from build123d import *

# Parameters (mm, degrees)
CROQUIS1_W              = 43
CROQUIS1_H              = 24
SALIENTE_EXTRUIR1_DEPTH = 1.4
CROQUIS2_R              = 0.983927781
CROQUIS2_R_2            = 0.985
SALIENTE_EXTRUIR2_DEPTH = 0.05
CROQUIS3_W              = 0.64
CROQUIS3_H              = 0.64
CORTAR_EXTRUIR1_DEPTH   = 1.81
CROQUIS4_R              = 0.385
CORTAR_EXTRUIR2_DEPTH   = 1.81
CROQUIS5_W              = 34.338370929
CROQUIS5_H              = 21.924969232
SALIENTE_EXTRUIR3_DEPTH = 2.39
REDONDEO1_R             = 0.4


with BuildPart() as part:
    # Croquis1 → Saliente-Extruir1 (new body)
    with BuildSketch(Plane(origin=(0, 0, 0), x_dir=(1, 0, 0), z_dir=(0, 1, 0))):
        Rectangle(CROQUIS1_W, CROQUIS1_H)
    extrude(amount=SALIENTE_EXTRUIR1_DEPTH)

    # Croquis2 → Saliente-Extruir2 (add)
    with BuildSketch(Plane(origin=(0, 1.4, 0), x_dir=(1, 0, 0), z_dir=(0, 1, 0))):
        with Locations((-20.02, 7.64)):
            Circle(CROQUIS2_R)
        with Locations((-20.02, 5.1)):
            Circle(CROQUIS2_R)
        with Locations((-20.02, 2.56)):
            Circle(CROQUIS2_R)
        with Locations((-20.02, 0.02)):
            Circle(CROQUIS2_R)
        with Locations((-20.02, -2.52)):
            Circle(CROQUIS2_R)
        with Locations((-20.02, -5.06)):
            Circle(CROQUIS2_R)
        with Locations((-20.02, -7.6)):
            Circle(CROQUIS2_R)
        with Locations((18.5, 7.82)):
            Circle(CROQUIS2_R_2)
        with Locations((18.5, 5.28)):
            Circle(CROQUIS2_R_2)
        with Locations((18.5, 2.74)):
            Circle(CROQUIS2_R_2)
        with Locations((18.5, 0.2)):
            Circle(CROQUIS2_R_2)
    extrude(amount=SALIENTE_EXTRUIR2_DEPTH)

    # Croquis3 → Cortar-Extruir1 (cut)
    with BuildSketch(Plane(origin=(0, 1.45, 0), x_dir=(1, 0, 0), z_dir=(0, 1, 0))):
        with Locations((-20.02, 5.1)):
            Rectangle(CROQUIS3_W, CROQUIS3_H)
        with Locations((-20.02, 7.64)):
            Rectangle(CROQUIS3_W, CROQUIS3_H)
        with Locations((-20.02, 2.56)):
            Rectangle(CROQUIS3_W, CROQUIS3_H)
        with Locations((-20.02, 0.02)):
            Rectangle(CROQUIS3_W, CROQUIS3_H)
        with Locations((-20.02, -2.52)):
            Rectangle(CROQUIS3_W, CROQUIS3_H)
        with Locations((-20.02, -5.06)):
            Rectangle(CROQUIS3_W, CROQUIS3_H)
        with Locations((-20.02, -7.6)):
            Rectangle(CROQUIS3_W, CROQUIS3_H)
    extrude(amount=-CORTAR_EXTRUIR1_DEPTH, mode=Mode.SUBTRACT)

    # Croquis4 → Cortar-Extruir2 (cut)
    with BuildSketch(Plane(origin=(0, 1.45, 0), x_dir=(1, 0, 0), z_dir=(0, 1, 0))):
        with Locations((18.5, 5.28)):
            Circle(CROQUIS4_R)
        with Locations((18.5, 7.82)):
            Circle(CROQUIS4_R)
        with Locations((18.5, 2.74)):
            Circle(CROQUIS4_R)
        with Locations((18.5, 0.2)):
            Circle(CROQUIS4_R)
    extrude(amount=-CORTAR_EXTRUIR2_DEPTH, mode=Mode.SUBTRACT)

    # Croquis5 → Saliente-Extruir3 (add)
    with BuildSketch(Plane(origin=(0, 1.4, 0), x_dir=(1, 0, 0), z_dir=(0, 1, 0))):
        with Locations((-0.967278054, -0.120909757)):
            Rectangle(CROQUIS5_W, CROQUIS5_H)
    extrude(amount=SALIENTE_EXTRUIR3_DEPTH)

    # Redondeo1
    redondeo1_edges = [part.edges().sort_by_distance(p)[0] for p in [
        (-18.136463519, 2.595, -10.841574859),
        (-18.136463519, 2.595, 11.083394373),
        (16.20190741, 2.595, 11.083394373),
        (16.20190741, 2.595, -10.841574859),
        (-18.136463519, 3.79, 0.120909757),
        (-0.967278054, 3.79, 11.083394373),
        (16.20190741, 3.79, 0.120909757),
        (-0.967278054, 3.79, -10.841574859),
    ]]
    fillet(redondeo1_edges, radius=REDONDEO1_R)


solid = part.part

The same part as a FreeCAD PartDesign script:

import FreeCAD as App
import Part
import Sketcher
Q = App.Units.Quantity


def edges_at(feature, points):
    """Names of the edges that pass closest to the given points."""
    edges = feature.Shape.Edges
    near = lambda p: min(range(len(edges)), key=lambda i: edges[i].distToShape(Part.Vertex(*p))[0])
    return sorted({f"Edge{near(p) + 1}" for p in points})


def add_polygon(sketch, points):
    """Adds a closed chain of lines whose ends are joined by coincident constraints."""
    first, n = sketch.GeometryCount, len(points)
    for a, b in zip(points, points[1:] + points[:1]):
        sketch.addGeometry(Part.LineSegment(App.Vector(*a, 0), App.Vector(*b, 0)), False)
    for i in range(n):
        sketch.addConstraint(Sketcher.Constraint("Coincident", first + i, 2, first + (i + 1) % n, 1))

doc = App.newDocument("Part")
body = doc.addObject("PartDesign::Body", "Body")

# Sketch on XZ plane
sketch1 = body.newObject("Sketcher::SketchObject", "Sketch")
sketch1.AttachmentSupport = (doc.getObject("XZ_Plane"), [""])
sketch1.MapMode = "FlatFace"
add_polygon(sketch1, [(-21.5, -12), (-21.5, 12), (21.5, 12), (21.5, -12)])  # lines 0-3
sketch1.addConstraint([
    Sketcher.Constraint("Vertical", 0),
    Sketcher.Constraint("Horizontal", 1),
    Sketcher.Constraint("Vertical", 2),
    Sketcher.Constraint("Horizontal", 3),
    Sketcher.Constraint("Symmetric", 0, 2, 2, 2, -1, 1),
    Sketcher.Constraint("DistanceX", 1, 1, 1, 2, Q("43 mm")),
    Sketcher.Constraint("DistanceY", 0, 1, 0, 2, Q("24 mm")),
])
pad1 = body.newObject("PartDesign::Pad", "Pad")
pad1.Profile = sketch1
pad1.Length = 1.4
pad1.Reversed = True

# Sketch on XZ plane
sketch2 = body.newObject("Sketcher::SketchObject", "Sketch001")
sketch2.AttachmentSupport = (doc.getObject("XZ_Plane"), [""])
sketch2.MapMode = "FlatFace"
sketch2.AttachmentOffset = App.Placement(App.Vector(0, 0, -1.4), App.Rotation())
sketch2.addGeometry([
    Part.Circle(App.Vector(-20.02, -7.64, 0), App.Vector(0, 0, 1), 0.983928),  # 0
    Part.Circle(App.Vector(-20.02, -5.1, 0), App.Vector(0, 0, 1), 0.983928),  # 1
    Part.Circle(App.Vector(-20.02, -2.56, 0), App.Vector(0, 0, 1), 0.983928),  # 2
    Part.Circle(App.Vector(-20.02, -0.02, 0), App.Vector(0, 0, 1), 0.983928),  # 3
    Part.Circle(App.Vector(-20.02, 2.52, 0), App.Vector(0, 0, 1), 0.983928),  # 4
    Part.Circle(App.Vector(-20.02, 5.06, 0), App.Vector(0, 0, 1), 0.983928),  # 5
    Part.Circle(App.Vector(-20.02, 7.6, 0), App.Vector(0, 0, 1), 0.983928),  # 6
    Part.Circle(App.Vector(18.5, -7.82, 0), App.Vector(0, 0, 1), 0.985),  # 7
    Part.Circle(App.Vector(18.5, -5.28, 0), App.Vector(0, 0, 1), 0.985),  # 8
    Part.Circle(App.Vector(18.5, -2.74, 0), App.Vector(0, 0, 1), 0.985),  # 9
    Part.Circle(App.Vector(18.5, -0.2, 0), App.Vector(0, 0, 1), 0.985),  # 10
], False)
sketch2.addConstraint([
    Sketcher.Constraint("Equal", 0, 1),
    Sketcher.Constraint("Equal", 1, 2),
    Sketcher.Constraint("Equal", 2, 3),
    Sketcher.Constraint("Equal", 3, 4),
    Sketcher.Constraint("Equal", 4, 5),
    Sketcher.Constraint("Equal", 5, 6),
    Sketcher.Constraint("Equal", 7, 8),
    Sketcher.Constraint("Equal", 8, 9),
    Sketcher.Constraint("Equal", 9, 10),
    Sketcher.Constraint("Vertical", 0, 3, 1, 3),
    Sketcher.Constraint("Vertical", 1, 3, 2, 3),
    Sketcher.Constraint("Vertical", 2, 3, 3, 3),
    Sketcher.Constraint("Vertical", 3, 3, 4, 3),
    Sketcher.Constraint("Vertical", 4, 3, 5, 3),
    Sketcher.Constraint("Vertical", 5, 3, 6, 3),
    Sketcher.Constraint("Vertical", 7, 3, 8, 3),
    Sketcher.Constraint("Vertical", 8, 3, 9, 3),
    Sketcher.Constraint("Vertical", 9, 3, 10, 3),
    Sketcher.Constraint("Diameter", 7, Q("1.97 mm")),
    Sketcher.Constraint("DistanceY", 1, 3, -1, 1, Q("5.1 mm")),
    Sketcher.Constraint("DistanceY", -1, 1, 6, 3, Q("7.6 mm")),
    Sketcher.Constraint("DistanceX", -1, 1, 7, 3, Q("18.5 mm")),
    Sketcher.Constraint("DistanceY", 10, 3, -1, 1, Q("0.2 mm")),
    Sketcher.Constraint("DistanceY", 0, 3, 5, 3, Q("12.7 mm")),
    Sketcher.Constraint("DistanceY", 7, 3, 3, 3, Q("7.8 mm")),
    Sketcher.Constraint("DistanceX", 0, 3, -1, 1, Q("20.02 mm")),
    Sketcher.Constraint("DistanceY", 0, 3, -1, 1, Q("7.64 mm")),
    Sketcher.Constraint("DistanceY", 2, 3, -1, 1, Q("2.56 mm")),
    Sketcher.Constraint("DistanceY", 3, 3, -1, 1, Q("0.02 mm")),
    Sketcher.Constraint("DistanceY", -1, 1, 4, 3, Q("2.52 mm")),
    Sketcher.Constraint("DistanceY", 8, 3, -1, 1, Q("5.28 mm")),
    Sketcher.Constraint("DistanceY", 9, 3, -1, 1, Q("2.74 mm")),
    Sketcher.Constraint("Diameter", 0, Q("1.967856 mm")),
])
pad2 = body.newObject("PartDesign::Pad", "Pad001")
pad2.Profile = sketch2
pad2.Length = 0.05
pad2.Reversed = True

# Sketch on XZ plane
sketch3 = body.newObject("Sketcher::SketchObject", "Sketch002")
sketch3.AttachmentSupport = (doc.getObject("XZ_Plane"), [""])
sketch3.MapMode = "FlatFace"
sketch3.AttachmentOffset = App.Placement(App.Vector(0, 0, -1.45), App.Rotation())
add_polygon(sketch3, [(-20.34, -5.42), (-20.34, -4.78), (-19.7, -4.78), (-19.7, -5.42)])  # lines 0-3
add_polygon(sketch3, [(-20.34, -7.96), (-20.34, -7.32), (-19.7, -7.32), (-19.7, -7.96)])  # lines 4-7
add_polygon(sketch3, [(-20.34, -2.88), (-20.34, -2.24), (-19.7, -2.24), (-19.7, -2.88)])  # lines 8-11
add_polygon(sketch3, [(-20.34, -0.34), (-20.34, 0.3), (-19.7, 0.3), (-19.7, -0.34)])  # lines 12-15
add_polygon(sketch3, [(-20.34, 2.2), (-20.34, 2.84), (-19.7, 2.84), (-19.7, 2.2)])  # lines 16-19
add_polygon(sketch3, [(-20.34, 4.74), (-20.34, 5.38), (-19.7, 5.38), (-19.7, 4.74)])  # lines 20-23
add_polygon(sketch3, [(-20.34, 7.28), (-20.34, 7.92), (-19.7, 7.92), (-19.7, 7.28)])  # lines 24-27
sketch3.addConstraint([
    Sketcher.Constraint("Vertical", 0),
    Sketcher.Constraint("Horizontal", 1),
    Sketcher.Constraint("Vertical", 2),
    Sketcher.Constraint("Horizontal", 3),
    Sketcher.Constraint("Vertical", 4),
    Sketcher.Constraint("Horizontal", 5),
    Sketcher.Constraint("Vertical", 6),
    Sketcher.Constraint("Horizontal", 7),
    Sketcher.Constraint("Vertical", 8),
    Sketcher.Constraint("Horizontal", 9),
    Sketcher.Constraint("Vertical", 10),
    Sketcher.Constraint("Horizontal", 11),
    Sketcher.Constraint("Vertical", 12),
    Sketcher.Constraint("Horizontal", 13),
    Sketcher.Constraint("Vertical", 14),
    Sketcher.Constraint("Horizontal", 15),
    Sketcher.Constraint("Vertical", 16),
    Sketcher.Constraint("Horizontal", 17),
    Sketcher.Constraint("Vertical", 18),
    Sketcher.Constraint("Horizontal", 19),
    Sketcher.Constraint("Vertical", 20),
    Sketcher.Constraint("Horizontal", 21),
    Sketcher.Constraint("Vertical", 22),
    Sketcher.Constraint("Horizontal", 23),
    Sketcher.Constraint("Vertical", 24),
    Sketcher.Constraint("Horizontal", 25),
    Sketcher.Constraint("Vertical", 26),
    Sketcher.Constraint("Horizontal", 27),
    Sketcher.Constraint("Vertical", 3, 2, 4, 2),
    Sketcher.Constraint("Vertical", 2, 2, 5, 2),
    Sketcher.Constraint("Vertical", 7, 2, 8, 2),
    Sketcher.Constraint("Vertical", 6, 2, 9, 2),
    Sketcher.Constraint("Vertical", 11, 2, 12, 2),
    Sketcher.Constraint("Vertical", 10, 2, 13, 2),
    Sketcher.Constraint("Vertical", 15, 2, 16, 2),
    Sketcher.Constraint("Vertical", 14, 2, 17, 2),
    Sketcher.Constraint("Vertical", 19, 2, 20, 2),
    Sketcher.Constraint("Vertical", 18, 2, 21, 2),
    Sketcher.Constraint("Vertical", 23, 2, 24, 2),
    Sketcher.Constraint("Vertical", 22, 2, 25, 2),
    Sketcher.Constraint("Equal", 27, 0),
    Sketcher.Constraint("Equal", 2, 4),
    Sketcher.Constraint("Equal", 6, 8),
    Sketcher.Constraint("Equal", 10, 12),
    Sketcher.Constraint("Equal", 14, 16),
    Sketcher.Constraint("Equal", 18, 20),
    Sketcher.Constraint("Equal", 22, 24),
    Sketcher.Constraint("DistanceX", 1, 1, 1, 2, Q("0.64 mm")),
    Sketcher.Constraint("DistanceX", 1, 2, -1, 1, Q("19.7 mm")),
    Sketcher.Constraint("DistanceY", -1, 1, 12, 2, Q("0.3 mm")),
    Sketcher.Constraint("DistanceY", -1, 1, 18, 2, Q("2.2 mm")),
    Sketcher.Constraint("DistanceY", 4, 2, 3, 2, Q("1.9 mm")),
    Sketcher.Constraint("DistanceY", 1, 2, 10, 2, Q("1.9 mm")),
    Sketcher.Constraint("DistanceY", 9, 2, 14, 2, Q("1.9 mm")),
    Sketcher.Constraint("DistanceY", 17, 2, 22, 2, Q("1.9 mm")),
    Sketcher.Constraint("DistanceY", 21, 2, 26, 2, Q("1.9 mm")),
])
pocket1 = body.newObject("PartDesign::Pocket", "Pocket")
pocket1.Profile = sketch3
pocket1.Length = 1.81
pocket1.Reversed = True

# Sketch on XZ plane
sketch4 = body.newObject("Sketcher::SketchObject", "Sketch003")
sketch4.AttachmentSupport = (doc.getObject("XZ_Plane"), [""])
sketch4.MapMode = "FlatFace"
sketch4.AttachmentOffset = App.Placement(App.Vector(0, 0, -1.45), App.Rotation())
sketch4.addGeometry([
    Part.Circle(App.Vector(18.5, -5.28, 0), App.Vector(0, 0, 1), 0.385),
    Part.Circle(App.Vector(18.5, -7.82, 0), App.Vector(0, 0, 1), 0.385),
    Part.Circle(App.Vector(18.5, -2.74, 0), App.Vector(0, 0, 1), 0.385),
    Part.Circle(App.Vector(18.5, -0.2, 0), App.Vector(0, 0, 1), 0.385),
], False)
sketch4.addConstraint([
    Sketcher.Constraint("Equal", 0, 1),
    Sketcher.Constraint("Equal", 1, 2),
    Sketcher.Constraint("Equal", 2, 3),
    Sketcher.Constraint("Vertical", 0, 3, 1, 3),
    Sketcher.Constraint("Vertical", 1, 3, 2, 3),
    Sketcher.Constraint("Vertical", 2, 3, 3, 3),
    Sketcher.Constraint("Diameter", 0, Q("0.77 mm")),
    Sketcher.Constraint("DistanceX", -1, 1, 0, 3, Q("18.5 mm")),
    Sketcher.Constraint("DistanceY", 3, 3, -1, 1, Q("0.2 mm")),
    Sketcher.Constraint("DistanceY", 0, 3, -1, 1, Q("5.28 mm")),
    Sketcher.Constraint("DistanceY", 1, 3, -1, 1, Q("7.82 mm")),
    Sketcher.Constraint("DistanceY", 2, 3, -1, 1, Q("2.74 mm")),
])
pocket2 = body.newObject("PartDesign::Pocket", "Pocket001")
pocket2.Profile = sketch4
pocket2.Length = 1.81
pocket2.Reversed = True

# Sketch on XZ plane
sketch5 = body.newObject("Sketcher::SketchObject", "Sketch004")
sketch5.AttachmentSupport = (doc.getObject("XZ_Plane"), [""])
sketch5.MapMode = "FlatFace"
sketch5.AttachmentOffset = App.Placement(App.Vector(0, 0, -1.4), App.Rotation())
add_polygon(sketch5, [(-18.136464, -10.841575), (-18.136464, 11.083394), (16.201907, 11.083394), (16.201907, -10.841575)])  # lines 0-3
sketch5.addConstraint([
    Sketcher.Constraint("Vertical", 0),
    Sketcher.Constraint("Horizontal", 1),
    Sketcher.Constraint("Vertical", 2),
    Sketcher.Constraint("Horizontal", 3),
    Sketcher.Constraint("DistanceX", 1, 1, 1, 2, Q("34.338371 mm")),
    Sketcher.Constraint("DistanceY", 0, 1, 0, 2, Q("21.924969 mm")),
    Sketcher.Constraint("DistanceX", 0, 2, -1, 1, Q("18.136464 mm")),
    Sketcher.Constraint("DistanceY", -1, 1, 0, 2, Q("11.083394 mm")),
])
pad3 = body.newObject("PartDesign::Pad", "Pad002")
pad3.Profile = sketch5
pad3.Length = 2.39
pad3.Reversed = True
doc.recompute()

fillet = body.newObject("PartDesign::Fillet", "Fillet")
fillet.Base = (pad3, edges_at(pad3, [
    (-18.136, 2.595, -10.842),
    (-18.136, 2.595, 11.083),
    (16.202, 2.595, 11.083),
    (16.202, 2.595, -10.842),
    (-18.136, 3.79, 0.121),
    (-0.967, 3.79, 11.083),
    (16.202, 3.79, 0.121),
    (-0.967, 3.79, -10.842),
]))
fillet.Radius = 0.4

doc.recompute()
